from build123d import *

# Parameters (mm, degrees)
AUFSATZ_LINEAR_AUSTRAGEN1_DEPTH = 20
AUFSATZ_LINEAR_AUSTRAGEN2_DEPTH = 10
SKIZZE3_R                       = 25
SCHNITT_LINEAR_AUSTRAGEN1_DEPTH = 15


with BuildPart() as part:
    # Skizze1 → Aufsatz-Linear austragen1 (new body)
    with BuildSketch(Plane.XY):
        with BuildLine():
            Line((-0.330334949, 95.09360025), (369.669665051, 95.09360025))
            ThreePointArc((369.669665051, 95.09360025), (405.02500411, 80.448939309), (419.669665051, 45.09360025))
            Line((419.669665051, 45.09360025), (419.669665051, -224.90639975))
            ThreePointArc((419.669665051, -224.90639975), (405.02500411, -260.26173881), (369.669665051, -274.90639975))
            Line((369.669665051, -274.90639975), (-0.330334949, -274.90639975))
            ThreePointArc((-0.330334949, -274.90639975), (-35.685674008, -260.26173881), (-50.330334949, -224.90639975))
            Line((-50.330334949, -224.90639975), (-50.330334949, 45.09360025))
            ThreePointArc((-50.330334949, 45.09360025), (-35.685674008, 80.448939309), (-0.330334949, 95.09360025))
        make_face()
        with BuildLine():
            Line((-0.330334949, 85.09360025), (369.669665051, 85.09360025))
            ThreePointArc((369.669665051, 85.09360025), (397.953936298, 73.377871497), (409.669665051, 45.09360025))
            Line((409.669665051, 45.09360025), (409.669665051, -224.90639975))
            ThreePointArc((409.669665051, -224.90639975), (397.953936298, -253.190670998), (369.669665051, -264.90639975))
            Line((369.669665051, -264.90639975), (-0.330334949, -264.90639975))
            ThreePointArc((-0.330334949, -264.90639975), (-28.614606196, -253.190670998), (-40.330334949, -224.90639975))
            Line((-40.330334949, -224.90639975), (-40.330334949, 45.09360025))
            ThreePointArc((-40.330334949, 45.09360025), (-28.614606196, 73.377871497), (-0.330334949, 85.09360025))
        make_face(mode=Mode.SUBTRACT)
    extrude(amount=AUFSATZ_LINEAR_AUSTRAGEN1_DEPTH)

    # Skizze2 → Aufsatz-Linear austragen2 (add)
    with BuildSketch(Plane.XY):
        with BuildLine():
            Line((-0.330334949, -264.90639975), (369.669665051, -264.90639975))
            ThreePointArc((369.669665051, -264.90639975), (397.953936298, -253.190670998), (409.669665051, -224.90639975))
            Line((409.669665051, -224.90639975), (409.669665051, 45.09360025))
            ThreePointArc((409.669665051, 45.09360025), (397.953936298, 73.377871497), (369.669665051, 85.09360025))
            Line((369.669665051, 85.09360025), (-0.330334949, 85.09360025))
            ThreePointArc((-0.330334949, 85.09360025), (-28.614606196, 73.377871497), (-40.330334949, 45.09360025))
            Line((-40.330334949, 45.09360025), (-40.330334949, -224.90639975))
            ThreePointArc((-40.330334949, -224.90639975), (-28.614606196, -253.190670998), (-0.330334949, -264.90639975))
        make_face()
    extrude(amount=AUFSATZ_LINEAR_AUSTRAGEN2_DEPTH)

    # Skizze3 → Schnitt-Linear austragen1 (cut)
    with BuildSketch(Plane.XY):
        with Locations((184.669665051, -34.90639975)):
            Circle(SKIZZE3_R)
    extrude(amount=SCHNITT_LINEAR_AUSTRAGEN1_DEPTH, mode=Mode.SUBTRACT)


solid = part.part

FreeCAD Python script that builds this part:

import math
import FreeCAD as App
import Part
import Sketcher
from FreeCAD import Vector

doc = App.newDocument("Part")
body = doc.addObject("PartDesign::Body", "Body")

sketch1 = doc.addObject("Sketcher::SketchObject", "Sketch")
body.addObject(sketch1)
sketch1.AttachmentSupport = (doc.XY_Plane, [""])
sketch1.MapMode = "FlatFace"
sketch1.addGeometry([
    Part.LineSegment(Vector(369.669665, 95.0936, 0), Vector(-0.330335, 95.0936, 0)),
    Part.ArcOfCircle(Part.Circle(Vector(-0.330335, 45.0936, 0), Vector(0, 0, 1), 50), math.radians(90), math.radians(180)),
    Part.LineSegment(Vector(-50.330335, 45.0936, 0), Vector(-50.330335, -224.9064, 0)),
    Part.ArcOfCircle(Part.Circle(Vector(-0.330335, -224.9064, 0), Vector(0, 0, 1), 50), math.radians(180), math.radians(270)),
    Part.LineSegment(Vector(-0.330335, -274.9064, 0), Vector(369.669665, -274.9064, 0)),
    Part.ArcOfCircle(Part.Circle(Vector(369.669665, -224.9064, 0), Vector(0, 0, 1), 50), math.radians(-90), math.radians(0)),
    Part.LineSegment(Vector(419.669665, -224.9064, 0), Vector(419.669665, 45.0936, 0)),
    Part.ArcOfCircle(Part.Circle(Vector(369.669665, 45.0936, 0), Vector(0, 0, 1), 50), math.radians(0), math.radians(90)),
    Part.LineSegment(Vector(-0.330335, 85.0936, 0), Vector(369.669665, 85.0936, 0)),
    Part.ArcOfCircle(Part.Circle(Vector(369.669665, 45.0936, 0), Vector(0, 0, 1), 40), math.radians(0), math.radians(90)),
    Part.LineSegment(Vector(409.669665, 45.0936, 0), Vector(409.669665, -224.9064, 0)),
    Part.ArcOfCircle(Part.Circle(Vector(369.669665, -224.9064, 0), Vector(0, 0, 1), 40), math.radians(-90), math.radians(0)),
    Part.LineSegment(Vector(369.669665, -264.9064, 0), Vector(-0.330335, -264.9064, 0)),
    Part.ArcOfCircle(Part.Circle(Vector(-0.330335, -224.9064, 0), Vector(0, 0, 1), 40), math.radians(180), math.radians(270)),
    Part.LineSegment(Vector(-40.330335, -224.9064, 0), Vector(-40.330335, 45.0936, 0)),
    Part.ArcOfCircle(Part.Circle(Vector(-0.330335, 45.0936, 0), Vector(0, 0, 1), 40), math.radians(90), math.radians(180)),
], False)
sketch1.addConstraint([
    Sketcher.Constraint("Tangent", 0, 2, 1, 1),
    Sketcher.Constraint("Tangent", 1, 2, 2, 1),
    Sketcher.Constraint("Tangent", 2, 2, 3, 1),
    Sketcher.Constraint("Tangent", 3, 2, 4, 1),
    Sketcher.Constraint("Tangent", 4, 2, 5, 1),
    Sketcher.Constraint("Tangent", 5, 2, 6, 1),
    Sketcher.Constraint("Tangent", 6, 2, 7, 1),
    Sketcher.Constraint("Tangent", 7, 2, 0, 1),
    Sketcher.Constraint("Tangent", 8, 2, 9, 2),
    Sketcher.Constraint("Tangent", 9, 1, 10, 1),
    Sketcher.Constraint("Tangent", 10, 2, 11, 2),
    Sketcher.Constraint("Tangent", 11, 1, 12, 1),
    Sketcher.Constraint("Tangent", 12, 2, 13, 2),
    Sketcher.Constraint("Tangent", 13, 1, 14, 1),
    Sketcher.Constraint("Tangent", 14, 2, 15, 2),
    Sketcher.Constraint("Tangent", 15, 1, 8, 1),
    Sketcher.Constraint("Horizontal", 0),
    Sketcher.Constraint("Vertical", 2),
    Sketcher.Constraint("Horizontal", 4),
    Sketcher.Constraint("Vertical", 6),
    Sketcher.Constraint("Horizontal", 8),
    Sketcher.Constraint("Vertical", 10),
    Sketcher.Constraint("Horizontal", 12),
    Sketcher.Constraint("Vertical", 14),
    Sketcher.Constraint("Coincident", 9, 3, 7, 3),
    Sketcher.Constraint("Coincident", 11, 3, 5, 3),
    Sketcher.Constraint("Coincident", 13, 3, 3, 3),
    Sketcher.Constraint("Equal", 1, 3),
    Sketcher.Constraint("Equal", 3, 5),
    Sketcher.Constraint("Equal", 5, 7),
    Sketcher.Constraint("Equal", 13, 15),
    Sketcher.Constraint("Radius", 1, 50.0),
    Sketcher.Constraint("Radius", 9, 40.0),
    Sketcher.Constraint("DistanceX", 0, 2, 0, 1, 370.0),
    Sketcher.Constraint("DistanceY", 2, 2, 2, 1, 270.0),
    Sketcher.Constraint("DistanceY", -1, 1, 1, 3, 45.0936),
    Sketcher.Constraint("DistanceX", 1, 3, -1, 1, 0.330335),
])
pad1 = doc.addObject("PartDesign::Pad", "Pad")
body.addObject(pad1)
pad1.Profile = sketch1
pad1.Length = 20

sketch2 = doc.addObject("Sketcher::SketchObject", "Sketch001")
body.addObject(sketch2)
sketch2.AttachmentSupport = (doc.XY_Plane, [""])
sketch2.MapMode = "FlatFace"
sketch2.addGeometry([
    Part.LineSegment(Vector(-0.330335, -264.9064, 0), Vector(369.669665, -264.9064, 0)),
    Part.ArcOfCircle(Part.Circle(Vector(369.669665, -224.9064, 0), Vector(0, 0, 1), 40), math.radians(-90), math.radians(0)),
    Part.LineSegment(Vector(409.669665, -224.9064, 0), Vector(409.669665, 45.0936, 0)),
    Part.ArcOfCircle(Part.Circle(Vector(369.669665, 45.0936, 0), Vector(0, 0, 1), 40), math.radians(0), math.radians(90)),
    Part.LineSegment(Vector(369.669665, 85.0936, 0), Vector(-0.330335, 85.0936, 0)),
    Part.ArcOfCircle(Part.Circle(Vector(-0.330335, 45.0936, 0), Vector(0, 0, 1), 40), math.radians(90), math.radians(180)),
    Part.LineSegment(Vector(-40.330335, 45.0936, 0), Vector(-40.330335, -224.9064, 0)),
    Part.ArcOfCircle(Part.Circle(Vector(-0.330335, -224.9064, 0), Vector(0, 0, 1), 40), math.radians(180), math.radians(270)),
], False)
sketch2.addConstraint([
    Sketcher.Constraint("Tangent", 0, 2, 1, 1),
    Sketcher.Constraint("Tangent", 1, 2, 2, 1),
    Sketcher.Constraint("Tangent", 2, 2, 3, 1),
    Sketcher.Constraint("Tangent", 3, 2, 4, 1),
    Sketcher.Constraint("Tangent", 4, 2, 5, 1),
    Sketcher.Constraint("Tangent", 5, 2, 6, 1),
    Sketcher.Constraint("Tangent", 6, 2, 7, 1),
    Sketcher.Constraint("Tangent", 7, 2, 0, 1),
    Sketcher.Constraint("Horizontal", 0),
    Sketcher.Constraint("Vertical", 2),
    Sketcher.Constraint("Horizontal", 4),
    Sketcher.Constraint("Vertical", 6),
    Sketcher.Constraint("Equal", 1, 3),
    Sketcher.Constraint("Equal", 3, 5),
    Sketcher.Constraint("Equal", 5, 7),
    Sketcher.Constraint("Radius", 1, 40.0),
    Sketcher.Constraint("DistanceX", 0, 1, 0, 2, 370.0),
    Sketcher.Constraint("DistanceY", 2, 1, 2, 2, 270.0),
    Sketcher.Constraint("DistanceY", 1, 3, -1, 1, 224.9064),
    Sketcher.Constraint("DistanceX", -1, 1, 1, 3, 369.669665),
])
pad2 = doc.addObject("PartDesign::Pad", "Pad001")
body.addObject(pad2)
pad2.Profile = sketch2
pad2.Length = 10

sketch3 = doc.addObject("Sketcher::SketchObject", "Sketch002")
body.addObject(sketch3)
sketch3.AttachmentSupport = (doc.XY_Plane, [""])
sketch3.MapMode = "FlatFace"
sketch3.addGeometry(Part.Circle(Vector(184.669665, -34.9064, 0), Vector(0, 0, 1), 25), False)
sketch3.addConstraint([
    Sketcher.Constraint("Diameter", 0, 50.0),
    Sketcher.Constraint("DistanceY", 0, 3, -1, 1, 34.9064),
    Sketcher.Constraint("DistanceX", -1, 1, 0, 3, 184.669665),
])
pocket1 = doc.addObject("PartDesign::Pocket", "Pocket")
body.addObject(pocket1)
pocket1.Profile = sketch3
pocket1.Length = 15
pocket1.Reversed = True

doc.recompute()
